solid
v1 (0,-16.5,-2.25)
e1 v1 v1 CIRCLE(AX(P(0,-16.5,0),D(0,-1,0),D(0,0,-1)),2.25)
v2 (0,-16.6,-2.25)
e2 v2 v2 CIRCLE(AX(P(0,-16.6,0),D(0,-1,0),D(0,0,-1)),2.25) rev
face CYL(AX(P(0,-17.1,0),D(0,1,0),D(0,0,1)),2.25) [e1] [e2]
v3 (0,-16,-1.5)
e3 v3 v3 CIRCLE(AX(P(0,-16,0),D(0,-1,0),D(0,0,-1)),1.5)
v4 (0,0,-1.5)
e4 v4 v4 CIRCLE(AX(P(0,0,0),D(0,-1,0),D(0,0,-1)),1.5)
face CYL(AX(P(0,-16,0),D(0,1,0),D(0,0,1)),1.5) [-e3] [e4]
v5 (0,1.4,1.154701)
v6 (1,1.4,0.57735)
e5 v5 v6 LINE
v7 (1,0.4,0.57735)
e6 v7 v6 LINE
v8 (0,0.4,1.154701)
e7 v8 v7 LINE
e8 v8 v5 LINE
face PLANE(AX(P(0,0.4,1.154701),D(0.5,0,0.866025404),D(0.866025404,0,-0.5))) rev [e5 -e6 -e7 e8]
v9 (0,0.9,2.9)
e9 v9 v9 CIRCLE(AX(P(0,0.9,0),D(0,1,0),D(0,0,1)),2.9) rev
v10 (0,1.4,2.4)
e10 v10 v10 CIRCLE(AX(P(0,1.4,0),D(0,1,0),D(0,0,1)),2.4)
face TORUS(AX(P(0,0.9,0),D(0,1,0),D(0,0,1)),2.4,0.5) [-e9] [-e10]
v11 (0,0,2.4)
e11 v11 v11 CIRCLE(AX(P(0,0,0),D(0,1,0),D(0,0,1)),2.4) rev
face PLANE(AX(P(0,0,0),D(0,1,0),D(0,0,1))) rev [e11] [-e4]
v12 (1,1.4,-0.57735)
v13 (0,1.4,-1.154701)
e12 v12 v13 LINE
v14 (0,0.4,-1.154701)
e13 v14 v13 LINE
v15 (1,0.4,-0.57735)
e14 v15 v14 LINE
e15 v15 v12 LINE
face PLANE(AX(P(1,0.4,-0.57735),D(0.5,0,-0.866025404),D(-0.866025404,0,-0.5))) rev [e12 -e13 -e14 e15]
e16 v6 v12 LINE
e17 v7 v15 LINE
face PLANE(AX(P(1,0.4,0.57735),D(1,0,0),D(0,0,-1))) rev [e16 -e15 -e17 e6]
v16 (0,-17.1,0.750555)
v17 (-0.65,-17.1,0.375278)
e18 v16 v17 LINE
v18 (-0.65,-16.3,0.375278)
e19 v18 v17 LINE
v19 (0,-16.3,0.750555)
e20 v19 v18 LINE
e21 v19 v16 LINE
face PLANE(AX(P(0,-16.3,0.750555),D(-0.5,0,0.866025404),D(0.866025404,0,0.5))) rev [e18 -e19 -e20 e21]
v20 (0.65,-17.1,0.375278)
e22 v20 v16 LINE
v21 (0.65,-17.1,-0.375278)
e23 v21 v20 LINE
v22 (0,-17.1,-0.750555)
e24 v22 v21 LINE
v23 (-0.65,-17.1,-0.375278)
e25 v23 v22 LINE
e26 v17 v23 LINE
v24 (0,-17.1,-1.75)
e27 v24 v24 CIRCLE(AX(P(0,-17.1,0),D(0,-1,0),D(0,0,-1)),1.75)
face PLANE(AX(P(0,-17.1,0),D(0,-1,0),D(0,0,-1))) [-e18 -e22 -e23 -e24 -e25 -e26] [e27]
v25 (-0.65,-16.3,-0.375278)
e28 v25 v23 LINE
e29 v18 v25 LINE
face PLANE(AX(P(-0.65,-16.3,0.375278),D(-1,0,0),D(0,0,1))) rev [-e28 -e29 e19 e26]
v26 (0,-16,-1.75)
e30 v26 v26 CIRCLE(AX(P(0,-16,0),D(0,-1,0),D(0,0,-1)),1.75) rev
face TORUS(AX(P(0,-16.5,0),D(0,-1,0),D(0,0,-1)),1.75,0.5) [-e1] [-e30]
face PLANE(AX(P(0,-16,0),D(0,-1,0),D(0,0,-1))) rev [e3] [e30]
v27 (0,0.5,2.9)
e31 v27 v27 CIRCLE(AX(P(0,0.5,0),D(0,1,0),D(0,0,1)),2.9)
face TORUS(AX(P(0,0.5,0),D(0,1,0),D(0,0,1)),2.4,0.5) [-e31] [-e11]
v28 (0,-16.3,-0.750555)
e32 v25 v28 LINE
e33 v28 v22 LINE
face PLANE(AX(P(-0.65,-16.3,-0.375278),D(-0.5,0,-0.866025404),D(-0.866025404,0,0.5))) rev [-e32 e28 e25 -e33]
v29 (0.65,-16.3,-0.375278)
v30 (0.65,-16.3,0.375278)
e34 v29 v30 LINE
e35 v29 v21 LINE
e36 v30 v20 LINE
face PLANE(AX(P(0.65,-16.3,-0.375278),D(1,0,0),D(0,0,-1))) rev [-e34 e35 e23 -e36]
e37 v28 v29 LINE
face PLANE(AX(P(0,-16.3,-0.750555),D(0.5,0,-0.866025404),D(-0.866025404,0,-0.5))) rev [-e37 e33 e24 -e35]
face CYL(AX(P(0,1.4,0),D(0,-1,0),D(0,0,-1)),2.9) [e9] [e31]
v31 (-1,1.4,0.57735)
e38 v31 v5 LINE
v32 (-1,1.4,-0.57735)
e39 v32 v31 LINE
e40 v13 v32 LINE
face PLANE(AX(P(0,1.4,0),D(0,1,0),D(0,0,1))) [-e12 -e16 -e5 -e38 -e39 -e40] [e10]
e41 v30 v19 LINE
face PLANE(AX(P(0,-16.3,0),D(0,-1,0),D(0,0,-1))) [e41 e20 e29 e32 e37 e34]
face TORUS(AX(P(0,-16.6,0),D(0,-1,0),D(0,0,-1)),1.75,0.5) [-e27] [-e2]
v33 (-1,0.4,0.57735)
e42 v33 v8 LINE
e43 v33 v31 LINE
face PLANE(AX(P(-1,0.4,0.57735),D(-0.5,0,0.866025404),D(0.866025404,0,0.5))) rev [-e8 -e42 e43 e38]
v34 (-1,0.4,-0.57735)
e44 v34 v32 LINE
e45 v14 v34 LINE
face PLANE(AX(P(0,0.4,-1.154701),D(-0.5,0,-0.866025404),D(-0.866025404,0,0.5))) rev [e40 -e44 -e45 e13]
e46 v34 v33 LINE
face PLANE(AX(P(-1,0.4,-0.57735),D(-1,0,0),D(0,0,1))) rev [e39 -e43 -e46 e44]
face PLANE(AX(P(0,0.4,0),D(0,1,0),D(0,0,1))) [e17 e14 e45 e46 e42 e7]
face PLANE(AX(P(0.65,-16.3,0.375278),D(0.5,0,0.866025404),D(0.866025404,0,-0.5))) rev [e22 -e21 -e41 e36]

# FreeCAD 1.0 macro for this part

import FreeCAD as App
import Part
import Sketcher
from FreeCAD import Vector
Q = App.Units.Quantity


def edges_at(feature, points):
    """Names of the edges that pass closest to the given points."""
    edges = feature.Shape.Edges
    near = lambda p: min(range(len(edges)), key=lambda i: edges[i].distToShape(Part.Vertex(*p))[0])
    return sorted({f"Edge{near(p) + 1}" for p in points})


def add_polygon(sketch, points):
    """Adds a closed chain of lines whose ends are joined by coincident constraints."""
    first, n = sketch.GeometryCount, len(points)
    for a, b in zip(points, points[1:] + points[:1]):
        sketch.addGeometry(Part.LineSegment(App.Vector(*a, 0), App.Vector(*b, 0)), False)
    for i in range(n):
        sketch.addConstraint(Sketcher.Constraint("Coincident", first + i, 2, first + (i + 1) % n, 1))

doc = App.newDocument("Part")
params = doc.addObject("Spreadsheet::Sheet", "Params")
for row, (alias, value) in enumerate([
    ("sketch1_diameter", "5.8 mm"),
    ("pad1_length", "1.4 mm"),
    ("pocket1_length", "1 mm"),
    ("sketch3_diameter", "3 mm"),
    ("pad2_length", "16 mm"),
    ("sketch4_diameter", "4.5 mm"),
    ("pad3_length", "1.1 mm"),
    ("pocket2_length", "0.8 mm"),
    ("fillet_radius", "0.5 mm"),
], start=1):
    params.set(f"A{row}", alias)
    params.set(f"B{row}", "=" + value)
    params.setAlias(f"B{row}", alias)

body = doc.addObject("PartDesign::Body", "Body")

# Sketch on XZ plane
sketch1 = doc.addObject("Sketcher::SketchObject", "Sketch")
body.addObject(sketch1)
sketch1.AttachmentSupport = (doc.XZ_Plane, [""])
sketch1.MapMode = "FlatFace"
sketch1.addGeometry(Part.Circle(Vector(0, 0, 0), Vector(0, 0, 1), 2.9), False)
sketch1.addConstraint([
    Sketcher.Constraint("Coincident", 0, 3, -1, 1),
    Sketcher.Constraint("Diameter", 0, Q("5.8 mm")),
])
sketch1.setExpression("Constraints[1]", "Params.sketch1_diameter")
pad1 = doc.addObject("PartDesign::Pad", "Pad")
body.addObject(pad1)
pad1.Profile = sketch1
pad1.setExpression("Length", "Params.pad1_length")
pad1.Reversed = True

# Sketch on XZ plane
sketch2 = doc.addObject("Sketcher::SketchObject", "Sketch001")
body.addObject(sketch2)
sketch2.AttachmentSupport = (doc.XZ_Plane, [""])
sketch2.MapMode = "FlatFace"
sketch2.AttachmentOffset = App.Placement(Vector(0, 0, -1.4), App.Rotation())
add_polygon(sketch2, [(1, -0.6), (0, -1.2), (-1, -0.6), (-1, 0.6), (0, 1.2), (1, 0.6)])  # lines 0-5
sketch2.addConstraint([
    Sketcher.Constraint("Vertical", 2),
    Sketcher.Constraint("Vertical", 5),
    Sketcher.Constraint("Symmetric", 0, 2, 3, 2, -1, 1),
    Sketcher.Constraint("Symmetric", 1, 2, 4, 2, -1, 1),
    Sketcher.Constraint("PointOnObject", 0, 2, -2),
    Sketcher.Constraint("Parallel", 0, 3),
    Sketcher.Constraint("Horizontal", 2, 2, 4, 2),
    Sketcher.Constraint("Angle", 0, Q("-150 deg")),
    Sketcher.Constraint("DistanceX", 1, 2, -1, 1, Q("1 mm")),
    Sketcher.Constraint("DistanceY", 2, 1, 2, 2, Q("1.154701 mm")),
])
pocket1 = doc.addObject("PartDesign::Pocket", "Pocket")
body.addObject(pocket1)
pocket1.Profile = sketch2
pocket1.setExpression("Length", "Params.pocket1_length")
pocket1.Reversed = True

# Sketch on XZ plane
sketch3 = doc.addObject("Sketcher::SketchObject", "Sketch002")
body.addObject(sketch3)
sketch3.AttachmentSupport = (doc.XZ_Plane, [""])
sketch3.MapMode = "FlatFace"
sketch3.addGeometry(Part.Circle(Vector(0, 0, 0), Vector(0, 0, 1), 1.5), False)
sketch3.addConstraint([
    Sketcher.Constraint("Coincident", 0, 3, -1, 1),
    Sketcher.Constraint("Diameter", 0, Q("3 mm")),
])
sketch3.setExpression("Constraints[1]", "Params.sketch3_diameter")
pad2 = doc.addObject("PartDesign::Pad", "Pad001")
body.addObject(pad2)
pad2.Profile = sketch3
pad2.setExpression("Length", "Params.pad2_length")

# Sketch on XZ plane
sketch4 = doc.addObject("Sketcher::SketchObject", "Sketch003")
body.addObject(sketch4)
sketch4.AttachmentSupport = (doc.XZ_Plane, [""])
sketch4.MapMode = "FlatFace"
sketch4.AttachmentOffset = App.Placement(Vector(0, 0, 16), App.Rotation())
sketch4.addGeometry(Part.Circle(Vector(0, 0, 0), Vector(0, 0, 1), 2.2), False)
sketch4.addConstraint([
    Sketcher.Constraint("Coincident", 0, 3, -1, 1),
    Sketcher.Constraint("Diameter", 0, Q("4.5 mm")),
])
sketch4.setExpression("Constraints[1]", "Params.sketch4_diameter")
pad3 = doc.addObject("PartDesign::Pad", "Pad002")
body.addObject(pad3)
pad3.Profile = sketch4
pad3.setExpression("Length", "Params.pad3_length")

# Sketch on XZ plane
sketch5 = doc.addObject("Sketcher::SketchObject", "Sketch004")
body.addObject(sketch5)
sketch5.AttachmentSupport = (doc.XZ_Plane, [""])
sketch5.MapMode = "FlatFace"
sketch5.AttachmentOffset = App.Placement(Vector(0, 0, 17.1), App.Rotation())
add_polygon(sketch5, [(0.7, 0.4), (0, 0.8), (-0.7, 0.4), (-0.7, -0.4), (0, -0.8), (0.7, -0.4)])  # lines 0-5
sketch5.addConstraint([
    Sketcher.Constraint("Vertical", 2),
    Sketcher.Constraint("Vertical", 5),
    Sketcher.Constraint("Symmetric", 0, 2, 3, 2, -1, 1),
    Sketcher.Constraint("Symmetric", 1, 2, 4, 2, -1, 1),
    Sketcher.Constraint("PointOnObject", 0, 2, -2),
    Sketcher.Constraint("Parallel", 0, 3),
    Sketcher.Constraint("Horizontal", 2, 2, 4, 2),
    Sketcher.Constraint("Angle", 0, Q("150 deg")),
    Sketcher.Constraint("DistanceX", 2, 2, 4, 2, Q("1.3 mm")),
    Sketcher.Constraint("DistanceY", 2, 2, 2, 1, Q("0.750555 mm")),
])
pocket2 = doc.addObject("PartDesign::Pocket", "Pocket001")
body.addObject(pocket2)
pocket2.Profile = sketch5
pocket2.setExpression("Length", "Params.pocket2_length")
doc.recompute()

fillet = doc.addObject("PartDesign::Fillet", "Fillet")
body.addObject(fillet)
fillet.Base = (pocket2, edges_at(pocket2, [
    (0, 0, -2.9),
    (0, -16, 2.25),
    (0, -17.1, 2.25),
    (0, 1.4, -2.9),
]))
fillet.setExpression("Radius", "Params.fillet_radius")

doc.recompute()
